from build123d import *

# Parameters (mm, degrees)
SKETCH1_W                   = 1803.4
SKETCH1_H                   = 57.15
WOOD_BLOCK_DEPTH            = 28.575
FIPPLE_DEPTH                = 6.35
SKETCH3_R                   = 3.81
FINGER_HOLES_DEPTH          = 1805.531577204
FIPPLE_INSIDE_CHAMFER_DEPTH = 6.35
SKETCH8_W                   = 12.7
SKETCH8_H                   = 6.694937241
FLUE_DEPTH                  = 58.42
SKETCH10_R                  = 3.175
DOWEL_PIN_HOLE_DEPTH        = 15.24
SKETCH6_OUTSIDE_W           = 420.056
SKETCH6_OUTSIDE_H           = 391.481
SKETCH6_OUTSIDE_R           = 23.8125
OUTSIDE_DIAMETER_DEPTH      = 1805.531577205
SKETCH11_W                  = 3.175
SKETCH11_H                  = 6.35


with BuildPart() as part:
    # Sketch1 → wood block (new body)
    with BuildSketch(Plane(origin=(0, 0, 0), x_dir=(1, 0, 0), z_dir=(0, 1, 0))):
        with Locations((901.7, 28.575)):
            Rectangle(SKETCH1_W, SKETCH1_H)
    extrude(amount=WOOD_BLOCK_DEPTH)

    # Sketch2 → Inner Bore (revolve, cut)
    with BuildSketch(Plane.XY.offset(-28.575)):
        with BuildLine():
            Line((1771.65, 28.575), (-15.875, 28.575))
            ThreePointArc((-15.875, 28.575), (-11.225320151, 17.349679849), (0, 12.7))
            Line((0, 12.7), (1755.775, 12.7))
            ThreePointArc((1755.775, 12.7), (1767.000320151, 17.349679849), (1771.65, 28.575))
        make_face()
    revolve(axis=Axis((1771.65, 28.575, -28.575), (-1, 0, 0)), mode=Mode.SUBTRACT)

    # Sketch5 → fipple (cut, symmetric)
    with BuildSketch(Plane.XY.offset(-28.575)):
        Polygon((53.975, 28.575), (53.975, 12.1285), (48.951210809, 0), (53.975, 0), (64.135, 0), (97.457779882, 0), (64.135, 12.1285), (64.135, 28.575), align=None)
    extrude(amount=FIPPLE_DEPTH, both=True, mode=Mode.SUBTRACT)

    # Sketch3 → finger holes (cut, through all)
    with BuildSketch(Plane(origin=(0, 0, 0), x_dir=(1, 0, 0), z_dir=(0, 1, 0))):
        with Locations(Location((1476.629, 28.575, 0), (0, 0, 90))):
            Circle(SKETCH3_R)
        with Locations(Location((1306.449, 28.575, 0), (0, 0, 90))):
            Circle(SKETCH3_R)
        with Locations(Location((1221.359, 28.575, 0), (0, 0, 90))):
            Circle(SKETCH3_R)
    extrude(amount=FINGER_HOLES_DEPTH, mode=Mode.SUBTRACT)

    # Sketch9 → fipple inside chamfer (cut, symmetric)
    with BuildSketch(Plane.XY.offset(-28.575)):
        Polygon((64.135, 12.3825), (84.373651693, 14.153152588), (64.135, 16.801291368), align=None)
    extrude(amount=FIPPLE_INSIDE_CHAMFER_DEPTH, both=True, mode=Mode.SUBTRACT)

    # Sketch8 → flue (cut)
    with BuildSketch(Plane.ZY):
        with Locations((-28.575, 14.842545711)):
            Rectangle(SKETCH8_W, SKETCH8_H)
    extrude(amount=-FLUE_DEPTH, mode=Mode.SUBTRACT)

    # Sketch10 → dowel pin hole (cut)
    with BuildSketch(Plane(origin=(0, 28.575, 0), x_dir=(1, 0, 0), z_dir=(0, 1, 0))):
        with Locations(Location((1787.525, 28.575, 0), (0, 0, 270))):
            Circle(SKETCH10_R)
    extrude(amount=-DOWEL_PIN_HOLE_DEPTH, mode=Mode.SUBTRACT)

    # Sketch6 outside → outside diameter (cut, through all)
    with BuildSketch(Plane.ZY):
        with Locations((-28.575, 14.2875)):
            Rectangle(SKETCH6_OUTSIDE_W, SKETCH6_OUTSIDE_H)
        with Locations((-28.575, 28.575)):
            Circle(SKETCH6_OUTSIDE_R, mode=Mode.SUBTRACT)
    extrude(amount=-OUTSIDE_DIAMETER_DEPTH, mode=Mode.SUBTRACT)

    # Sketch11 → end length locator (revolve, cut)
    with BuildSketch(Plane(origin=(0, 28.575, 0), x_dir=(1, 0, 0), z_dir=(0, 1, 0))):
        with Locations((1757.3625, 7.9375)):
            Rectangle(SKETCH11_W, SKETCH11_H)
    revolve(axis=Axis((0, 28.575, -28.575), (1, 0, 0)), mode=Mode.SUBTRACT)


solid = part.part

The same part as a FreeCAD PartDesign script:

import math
import FreeCAD as App
import Part
import Sketcher
from FreeCAD import Vector
Q = App.Units.Quantity


def add_polygon(sketch, points):
    """Adds a closed chain of lines whose ends are joined by coincident constraints."""
    first, n = sketch.GeometryCount, len(points)
    for a, b in zip(points, points[1:] + points[:1]):
        sketch.addGeometry(Part.LineSegment(App.Vector(*a, 0), App.Vector(*b, 0)), False)
    for i in range(n):
        sketch.addConstraint(Sketcher.Constraint("Coincident", first + i, 2, first + (i + 1) % n, 1))

doc = App.newDocument("Part")
body = doc.addObject("PartDesign::Body", "Body")

# Sketch on XZ plane
sketch1 = body.newObject("Sketcher::SketchObject", "Sketch")
sketch1.AttachmentSupport = (doc.getObject("XZ_Plane"), [""])
sketch1.MapMode = "FlatFace"
add_polygon(sketch1, [(0, -57), (0, 0), (1803, 0), (1803, -57)])  # lines 0-3
sketch1.addConstraint(Sketcher.Constraint("Vertical", 0))
sketch1.addConstraint(Sketcher.Constraint("Horizontal", 1))
sketch1.addConstraint(Sketcher.Constraint("Vertical", 2))
sketch1.addConstraint(Sketcher.Constraint("Horizontal", 3))
sketch1.addConstraint(Sketcher.Constraint("Coincident", 0, 2, -1, 1))
sketch1.addConstraint(Sketcher.Constraint("DistanceX", 1, 1, 1, 2, Q("71 in")))
sketch1.addConstraint(Sketcher.Constraint("DistanceY", 0, 1, 0, 2, Q("2.25 in")))
pad1 = body.newObject("PartDesign::Pad", "Pad")
pad1.Profile = sketch1
pad1.Length = Q("1.125 in")
pad1.Reversed = True

# Sketch on XY plane
sketch2 = body.newObject("Sketcher::SketchObject", "Sketch001")
sketch2.AttachmentSupport = (doc.getObject("XY_Plane"), [""])
sketch2.MapMode = "FlatFace"
sketch2.AttachmentOffset = App.Placement(Vector(0, 0, -1.125 * 25.4), App.Rotation())
sketch2.addGeometry(Part.LineSegment(Vector(1772, 29, 0), Vector(-16, 29, 0)), False)
sketch2.addGeometry(Part.ArcOfCircle(Part.Circle(Vector(0, 29, 0), Vector(0, 0, 1), 16), math.radians(-180), math.radians(-90)), False)
sketch2.addGeometry(Part.LineSegment(Vector(0, 13, 0), Vector(1756, 13, 0)), False)
sketch2.addGeometry(Part.ArcOfCircle(Part.Circle(Vector(1756, 29, 0), Vector(0, 0, 1), 16), math.radians(-90), math.radians(0)), False)
sketch2.addGeometry(Part.LineSegment(Vector(1772, 29, 0), Vector(-16, 29, 0)), True)  # axis
sketch2.addConstraint(Sketcher.Constraint("Coincident", 0, 2, 1, 1))
sketch2.addConstraint(Sketcher.Constraint("Tangent", 1, 2, 2, 1))
sketch2.addConstraint(Sketcher.Constraint("Tangent", 2, 2, 3, 1))
sketch2.addConstraint(Sketcher.Constraint("Coincident", 3, 2, 0, 1))
sketch2.addConstraint(Sketcher.Constraint("Horizontal", 0))
sketch2.addConstraint(Sketcher.Constraint("Horizontal", 2))
sketch2.addConstraint(Sketcher.Constraint("Horizontal", 4))
sketch2.addConstraint(Sketcher.Constraint("Coincident", 4, 1, 3, 2))
sketch2.addConstraint(Sketcher.Constraint("Equal", 1, 3))
sketch2.addConstraint(Sketcher.Constraint("PointOnObject", 1, 3, -2))
sketch2.addConstraint(Sketcher.Constraint("Horizontal", 3, 3, 0, 2))
sketch2.addConstraint(Sketcher.Constraint("Equal", 0, 4))
sketch2.addConstraint(Sketcher.Constraint("Radius", 1, Q("0.625 in")))
sketch2.addConstraint(Sketcher.Constraint("DistanceY", -1, 1, 1, 2, Q("0.5 in")))
sketch2.addConstraint(Sketcher.Constraint("DistanceX", 0, 2, 0, 1, Q("70.375 in")))
groove = body.newObject("PartDesign::Groove", "Groove")
groove.Profile = sketch2
groove.ReferenceAxis = (sketch2, ["Axis0"])
groove.Angle = 360

# Sketch on XY plane
sketch3 = body.newObject("Sketcher::SketchObject", "Sketch002")
sketch3.AttachmentSupport = (doc.getObject("XY_Plane"), [""])
sketch3.MapMode = "FlatFace"
sketch3.AttachmentOffset = App.Placement(Vector(0, 0, -1.125 * 25.4), App.Rotation())
add_polygon(sketch3, [(54, 29), (54, 12), (49, 0), (97, 0), (64, 12), (64, 29)])  # lines 0-5
sketch3.addConstraint(Sketcher.Constraint("Vertical", 0))
sketch3.addConstraint(Sketcher.Constraint("Horizontal", 2))
sketch3.addConstraint(Sketcher.Constraint("Vertical", 4))
sketch3.addConstraint(Sketcher.Constraint("Horizontal", 5))
sketch3.addConstraint(Sketcher.Constraint("PointOnObject", 1, 2, -1))
sketch3.addConstraint(Sketcher.Constraint("Horizontal", 0, 2, 3, 2))
sketch3.addConstraint(Sketcher.Constraint("DistanceX", 5, 2, 5, 1, Q("0.4 in")))
sketch3.addConstraint(Sketcher.Constraint("Angle", 3, Q("160 deg")))
sketch3.addConstraint(Sketcher.Constraint("Angle", 1, Q("-112.5 deg")))
sketch3.addConstraint(Sketcher.Constraint("DistanceY", 0, 2, 0, 1, Q("0.6475 in")))
sketch3.addConstraint(Sketcher.Constraint("DistanceX", -1, 1, 0, 2, Q("2.125 in")))
sketch3.addConstraint(Sketcher.Constraint("DistanceY", -1, 1, 4, 2, Q("1.125 in")))
pocket1 = body.newObject("PartDesign::Pocket", "Pocket")
pocket1.Profile = sketch3
pocket1.Length = Q("0.5 in")
pocket1.Midplane = True

# Sketch on XZ plane
sketch4 = body.newObject("Sketcher::SketchObject", "Sketch003")
sketch4.AttachmentSupport = (doc.getObject("XZ_Plane"), [""])
sketch4.MapMode = "FlatFace"
sketch4.addGeometry(Part.Circle(Vector(1476.6, -28.6, 0), Vector(0, 0, 1), 3.8), False)
sketch4.addGeometry(Part.Circle(Vector(1306.4, -28.6, 0), Vector(0, 0, 1), 3.8), False)
sketch4.addGeometry(Part.Circle(Vector(1221.4, -28.6, 0), Vector(0, 0, 1), 3.8), False)
sketch4.addConstraint(Sketcher.Constraint("Equal", 0, 1))
sketch4.addConstraint(Sketcher.Constraint("Equal", 1, 2))
sketch4.addConstraint(Sketcher.Constraint("Horizontal", 0, 3, 1, 3))
sketch4.addConstraint(Sketcher.Constraint("Horizontal", 1, 3, 2, 3))
sketch4.addConstraint(Sketcher.Constraint("Diameter", 0, Q("0.3 in")))
sketch4.addConstraint(Sketcher.Constraint("DistanceX", 1, 3, 0, 3, Q("6.7 in")))
sketch4.addConstraint(Sketcher.Constraint("DistanceX", 2, 3, 1, 3, Q("3.35 in")))
sketch4.addConstraint(Sketcher.Constraint("DistanceX", -1, 1, 0, 3, Q("58.135 in")))
sketch4.addConstraint(Sketcher.Constraint("DistanceY", 0, 3, -1, 1, Q("1.125 in")))
pocket2 = body.newObject("PartDesign::Pocket", "Pocket001")
pocket2.Profile = sketch4
pocket2.Type = "ThroughAll"

# Sketch on XY plane
sketch5 = body.newObject("Sketcher::SketchObject", "Sketch004")
sketch5.AttachmentSupport = (doc.getObject("XY_Plane"), [""])
sketch5.MapMode = "FlatFace"
sketch5.AttachmentOffset = App.Placement(Vector(0, 0, -1.125 * 25.4), App.Rotation())
add_polygon(sketch5, [(64.1, 12.4), (84.4, 14.2), (64.1, 16.8)])  # lines 0-2
sketch5.addConstraint(Sketcher.Constraint("Vertical", 2))
sketch5.addConstraint(Sketcher.Constraint("Angle", 0, Q("5 deg")))
sketch5.addConstraint(Sketcher.Constraint("DistanceX", -1, 1, 1, 2, Q("2.525 in")))
sketch5.addConstraint(Sketcher.Constraint("DistanceY", -1, 1, 2, 2, Q("0.4875 in")))
sketch5.addConstraint(Sketcher.Constraint("DistanceY", 2, 2, 2, 1, 4.418791))
sketch5.addConstraint(Sketcher.Constraint("Distance", 0, 20.31596))
pocket3 = body.newObject("PartDesign::Pocket", "Pocket002")
pocket3.Profile = sketch5
pocket3.Length = Q("0.5 in")
pocket3.Midplane = True

# Sketch on YZ plane
sketch6 = body.newObject("Sketcher::SketchObject", "Sketch005")
sketch6.AttachmentSupport = (doc.getObject("YZ_Plane"), [""])
sketch6.MapMode = "FlatFace"
add_polygon(sketch6, [(18, -35), (11, -35), (11, -22), (18, -22)])  # lines 0-3
sketch6.addConstraint(Sketcher.Constraint("Horizontal", 0))
sketch6.addConstraint(Sketcher.Constraint("Vertical", 1))
sketch6.addConstraint(Sketcher.Constraint("Horizontal", 2))
sketch6.addConstraint(Sketcher.Constraint("Vertical", 3))
sketch6.addConstraint(Sketcher.Constraint("DistanceY", 1, 1, 1, 2, Q("0.5 in")))
sketch6.addConstraint(Sketcher.Constraint("DistanceY", 0, 2, -1, 1, Q("1.375 in")))
sketch6.addConstraint(Sketcher.Constraint("DistanceX", 0, 2, 0, 1, 6.694937))
sketch6.addConstraint(Sketcher.Constraint("DistanceX", -1, 1, 0, 2, 11.495077))
pocket4 = body.newObject("PartDesign::Pocket", "Pocket003")
pocket4.Profile = sketch6
pocket4.Length = Q("2.3 in")
pocket4.Reversed = True

# Sketch on XZ plane
sketch7 = body.newObject("Sketcher::SketchObject", "Sketch006")
sketch7.AttachmentSupport = (doc.getObject("XZ_Plane"), [""])
sketch7.MapMode = "FlatFace"
sketch7.AttachmentOffset = App.Placement(Vector(0, 0, -1.125 * 25.4), App.Rotation())
sketch7.addGeometry(Part.Circle(Vector(1787.5, -28.6, 0), Vector(0, 0, 1), 3.2), False)
sketch7.addConstraint(Sketcher.Constraint("Diameter", 0, Q("0.25 in")))
sketch7.addConstraint(Sketcher.Constraint("DistanceX", -1, 1, 0, 3, Q("70.375 in")))
sketch7.addConstraint(Sketcher.Constraint("DistanceY", 0, 3, -1, 1, Q("1.125 in")))
pocket5 = body.newObject("PartDesign::Pocket", "Pocket004")
pocket5.Profile = sketch7
pocket5.Length = Q("0.6 in")
pocket5.Reversed = True

# Sketch on YZ plane
sketch8 = body.newObject("Sketcher::SketchObject", "Sketch007")
sketch8.AttachmentSupport = (doc.getObject("YZ_Plane"), [""])
sketch8.MapMode = "FlatFace"
add_polygon(sketch8, [(210, -239), (-181, -239), (-181, 181), (210, 181)])  # lines 0-3
sketch8.addGeometry(Part.Circle(Vector(29, -29, 0), Vector(0, 0, 1), 24), False)  # 4
sketch8.addConstraint(Sketcher.Constraint("Horizontal", 0))
sketch8.addConstraint(Sketcher.Constraint("Vertical", 1))
sketch8.addConstraint(Sketcher.Constraint("Horizontal", 2))
sketch8.addConstraint(Sketcher.Constraint("Vertical", 3))
sketch8.addConstraint(Sketcher.Constraint("Diameter", 4, Q("1.875 in")))
sketch8.addConstraint(Sketcher.Constraint("DistanceX", -1, 1, 4, 3, Q("1.125 in")))
sketch8.addConstraint(Sketcher.Constraint("DistanceY", 4, 3, -1, 1, Q("1.125 in")))
sketch8.addConstraint(Sketcher.Constraint("DistanceX", 0, 2, 0, 1, 391.481))
sketch8.addConstraint(Sketcher.Constraint("DistanceY", 1, 1, 1, 2, 420.056))
sketch8.addConstraint(Sketcher.Constraint("DistanceX", 0, 2, -1, 1, 181.453))
sketch8.addConstraint(Sketcher.Constraint("DistanceY", 0, 2, -1, 1, 238.603))
pocket6 = body.newObject("PartDesign::Pocket", "Pocket005")
pocket6.Profile = sketch8
pocket6.Type = "ThroughAll"
pocket6.Reversed = True

# Sketch on XZ plane
sketch9 = body.newObject("Sketcher::SketchObject", "Sketch008")
sketch9.AttachmentSupport = (doc.getObject("XZ_Plane"), [""])
sketch9.MapMode = "FlatFace"
sketch9.AttachmentOffset = App.Placement(Vector(0, 0, -1.125 * 25.4), App.Rotation())
add_polygon(sketch9, [(1755.8, -11.1), (1755.8, -4.8), (1759, -4.8), (1759, -11.1)])  # lines 0-3
sketch9.addGeometry(Part.LineSegment(Vector(1755.8, -28.6, 0), Vector(1759, -28.6, 0)), True)  # axis
sketch9.addConstraint(Sketcher.Constraint("Vertical", 0))
sketch9.addConstraint(Sketcher.Constraint("Horizontal", 1))
sketch9.addConstraint(Sketcher.Constraint("Vertical", 2))
sketch9.addConstraint(Sketcher.Constraint("Horizontal", 3))
sketch9.addConstraint(Sketcher.Constraint("Horizontal", 4))
sketch9.addConstraint(Sketcher.Constraint("Vertical", 3, 2, 4, 1))
sketch9.addConstraint(Sketcher.Constraint("Vertical", 2, 2, 4, 2))
sketch9.addConstraint(Sketcher.Constraint("DistanceY", 0, 1, 0, 2, Q("0.25 in")))
sketch9.addConstraint(Sketcher.Constraint("DistanceX", 1, 1, 1, 2, Q("0.125 in")))
sketch9.addConstraint(Sketcher.Constraint("DistanceX", -1, 1, 1, 2, Q("69.25 in")))
sketch9.addConstraint(Sketcher.Constraint("DistanceY", 0, 2, -1, 1, Q("0.1875 in")))
sketch9.addConstraint(Sketcher.Constraint("DistanceY", 4, 1, -1, 1, Q("1.125 in")))
groove2 = body.newObject("PartDesign::Groove", "Groove001")
groove2.Profile = sketch9
groove2.ReferenceAxis = (sketch9, ["Axis0"])
groove2.Angle = 360

doc.recompute()
